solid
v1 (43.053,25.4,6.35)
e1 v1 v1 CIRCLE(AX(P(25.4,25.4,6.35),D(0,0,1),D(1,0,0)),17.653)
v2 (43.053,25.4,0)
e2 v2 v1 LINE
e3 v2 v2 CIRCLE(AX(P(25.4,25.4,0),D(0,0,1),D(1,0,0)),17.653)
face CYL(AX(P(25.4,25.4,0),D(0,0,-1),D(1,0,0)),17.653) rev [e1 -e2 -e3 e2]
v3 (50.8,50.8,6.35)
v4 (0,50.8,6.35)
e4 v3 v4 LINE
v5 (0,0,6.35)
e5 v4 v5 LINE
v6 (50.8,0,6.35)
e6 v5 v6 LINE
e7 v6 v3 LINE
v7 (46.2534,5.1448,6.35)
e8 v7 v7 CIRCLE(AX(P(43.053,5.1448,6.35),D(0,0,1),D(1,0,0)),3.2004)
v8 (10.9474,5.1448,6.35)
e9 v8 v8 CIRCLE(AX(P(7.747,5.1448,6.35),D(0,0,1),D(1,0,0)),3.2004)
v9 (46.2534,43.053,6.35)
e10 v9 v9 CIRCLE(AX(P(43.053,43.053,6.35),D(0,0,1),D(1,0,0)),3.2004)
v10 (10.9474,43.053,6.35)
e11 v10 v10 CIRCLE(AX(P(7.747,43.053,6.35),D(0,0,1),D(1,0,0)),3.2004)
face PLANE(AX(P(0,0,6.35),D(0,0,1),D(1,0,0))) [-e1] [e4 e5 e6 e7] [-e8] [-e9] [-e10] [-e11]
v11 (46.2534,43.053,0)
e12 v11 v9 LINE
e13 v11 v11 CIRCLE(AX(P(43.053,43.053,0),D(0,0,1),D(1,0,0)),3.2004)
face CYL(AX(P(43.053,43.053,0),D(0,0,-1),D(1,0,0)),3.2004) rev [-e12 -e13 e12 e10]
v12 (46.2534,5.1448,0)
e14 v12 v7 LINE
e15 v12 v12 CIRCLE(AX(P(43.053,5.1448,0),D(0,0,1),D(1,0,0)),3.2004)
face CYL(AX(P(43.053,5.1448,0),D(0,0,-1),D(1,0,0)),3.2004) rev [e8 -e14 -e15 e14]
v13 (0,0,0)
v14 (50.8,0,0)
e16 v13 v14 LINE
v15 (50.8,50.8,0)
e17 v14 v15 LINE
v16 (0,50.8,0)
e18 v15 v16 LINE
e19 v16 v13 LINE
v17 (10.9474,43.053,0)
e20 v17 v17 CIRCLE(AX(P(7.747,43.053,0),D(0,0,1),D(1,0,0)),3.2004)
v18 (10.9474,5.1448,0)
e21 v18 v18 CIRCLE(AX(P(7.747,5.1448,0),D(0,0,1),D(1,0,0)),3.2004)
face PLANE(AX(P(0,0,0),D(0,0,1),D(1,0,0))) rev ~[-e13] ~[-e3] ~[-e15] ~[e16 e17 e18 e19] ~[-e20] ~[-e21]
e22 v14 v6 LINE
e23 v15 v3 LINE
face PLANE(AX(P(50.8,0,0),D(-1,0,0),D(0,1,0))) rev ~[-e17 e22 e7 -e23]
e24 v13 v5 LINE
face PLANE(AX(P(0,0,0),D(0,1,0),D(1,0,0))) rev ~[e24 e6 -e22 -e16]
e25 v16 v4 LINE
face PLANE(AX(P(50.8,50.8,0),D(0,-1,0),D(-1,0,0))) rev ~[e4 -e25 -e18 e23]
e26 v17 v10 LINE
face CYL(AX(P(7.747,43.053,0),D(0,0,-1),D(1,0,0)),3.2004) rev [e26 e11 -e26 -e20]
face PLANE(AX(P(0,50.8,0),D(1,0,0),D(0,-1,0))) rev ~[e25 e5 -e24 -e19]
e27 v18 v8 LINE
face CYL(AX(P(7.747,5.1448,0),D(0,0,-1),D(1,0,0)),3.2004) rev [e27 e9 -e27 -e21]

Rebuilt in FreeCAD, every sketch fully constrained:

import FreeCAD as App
import Part
import Sketcher
from FreeCAD import Vector
Q = App.Units.Quantity


def add_polygon(sketch, points):
    """Adds a closed chain of lines whose ends are joined by coincident constraints."""
    first, n = sketch.GeometryCount, len(points)
    for a, b in zip(points, points[1:] + points[:1]):
        sketch.addGeometry(Part.LineSegment(App.Vector(*a, 0), App.Vector(*b, 0)), False)
    for i in range(n):
        sketch.addConstraint(Sketcher.Constraint("Coincident", first + i, 2, first + (i + 1) % n, 1))

doc = App.newDocument("Part")
body = doc.addObject("PartDesign::Body", "Body")

sketch1 = doc.addObject("Sketcher::SketchObject", "Sketch")
body.addObject(sketch1)
sketch1.AttachmentSupport = (doc.XY_Plane, [""])
sketch1.MapMode = "FlatFace"
add_polygon(sketch1, [(0, 50.8), (0, 0), (50.8, 0), (50.8, 50.8)])
sketch1.addGeometry(Part.Circle(Vector(7.7, 5.1, 0), Vector(0, 0, 1), 3.2), False)
sketch1.addGeometry(Part.Circle(Vector(25.4, 25.4, 0), Vector(0, 0, 1), 17.7), False)
sketch1.addGeometry(Part.Circle(Vector(43.1, 5.1, 0), Vector(0, 0, 1), 3.2), False)
sketch1.addGeometry(Part.Circle(Vector(7.7, 43.1, 0), Vector(0, 0, 1), 3.2), False)
sketch1.addGeometry(Part.Circle(Vector(43.1, 43.1, 0), Vector(0, 0, 1), 3.2), False)
sketch1.addConstraint([
    Sketcher.Constraint("Vertical", 0),
    Sketcher.Constraint("Horizontal", 1),
    Sketcher.Constraint("Vertical", 2),
    Sketcher.Constraint("Horizontal", 3),
    Sketcher.Constraint("Coincident", 0, 2, -1, 1),
    Sketcher.Constraint("Equal", 4, 6),
    Sketcher.Constraint("Equal", 6, 7),
    Sketcher.Constraint("Equal", 7, 8),
    Sketcher.Constraint("Horizontal", 4, 3, 6, 3),
    Sketcher.Constraint("Horizontal", 7, 3, 8, 3),
    Sketcher.Constraint("Vertical", 4, 3, 7, 3),
    Sketcher.Constraint("Vertical", 6, 3, 8, 3),
    Sketcher.Constraint("Equal", 3, 0),
    Sketcher.Constraint("Diameter", 5, Q("1.39 in")),
    Sketcher.Constraint("DistanceX", 1, 1, 1, 2, Q("2 in")),
    Sketcher.Constraint("Diameter", 4, Q("0.252 in")),
    Sketcher.Constraint("DistanceX", 4, 3, 6, 3, Q("1.39 in")),
    Sketcher.Constraint("DistanceX", -1, 1, 5, 3, Q("1 in")),
    Sketcher.Constraint("DistanceY", -1, 1, 5, 3, Q("1 in")),
    Sketcher.Constraint("DistanceX", -1, 1, 4, 3, Q("0.305 in")),
    Sketcher.Constraint("DistanceY", -1, 1, 7, 3, Q("1.695 in")),
    Sketcher.Constraint("DistanceY", -1, 1, 4, 3, 5.1448),
])
pad1 = doc.addObject("PartDesign::Pad", "Pad")
body.addObject(pad1)
pad1.Profile = sketch1
pad1.Length = Q("0.25 in")

doc.recompute()
